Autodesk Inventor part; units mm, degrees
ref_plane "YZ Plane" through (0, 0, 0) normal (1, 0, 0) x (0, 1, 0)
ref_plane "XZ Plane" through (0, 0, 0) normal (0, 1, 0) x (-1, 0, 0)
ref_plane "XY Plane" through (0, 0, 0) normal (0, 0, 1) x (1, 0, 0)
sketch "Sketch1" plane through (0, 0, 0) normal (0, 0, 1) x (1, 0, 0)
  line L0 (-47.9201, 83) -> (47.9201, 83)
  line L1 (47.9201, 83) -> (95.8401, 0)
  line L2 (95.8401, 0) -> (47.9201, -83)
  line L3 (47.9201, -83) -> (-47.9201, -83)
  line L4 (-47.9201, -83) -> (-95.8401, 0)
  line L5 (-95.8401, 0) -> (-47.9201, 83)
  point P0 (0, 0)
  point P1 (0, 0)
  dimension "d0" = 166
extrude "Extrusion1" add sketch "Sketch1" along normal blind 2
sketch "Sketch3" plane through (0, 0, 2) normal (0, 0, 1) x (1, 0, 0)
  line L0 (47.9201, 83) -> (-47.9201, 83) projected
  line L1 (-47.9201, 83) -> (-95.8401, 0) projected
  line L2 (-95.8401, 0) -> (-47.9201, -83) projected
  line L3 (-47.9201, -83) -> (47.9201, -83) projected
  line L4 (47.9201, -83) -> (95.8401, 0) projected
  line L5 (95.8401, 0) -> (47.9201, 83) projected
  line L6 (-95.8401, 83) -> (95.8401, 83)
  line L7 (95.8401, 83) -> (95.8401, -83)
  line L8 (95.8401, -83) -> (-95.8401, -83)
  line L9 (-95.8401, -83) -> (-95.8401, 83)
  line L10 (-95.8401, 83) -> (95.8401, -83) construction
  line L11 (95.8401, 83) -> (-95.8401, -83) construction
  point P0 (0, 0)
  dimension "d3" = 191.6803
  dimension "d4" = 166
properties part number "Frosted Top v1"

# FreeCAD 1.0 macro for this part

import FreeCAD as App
import Part
import Sketcher
Q = App.Units.Quantity


def add_polygon(sketch, points):
    """Adds a closed chain of lines whose ends are joined by coincident constraints."""
    first, n = sketch.GeometryCount, len(points)
    for a, b in zip(points, points[1:] + points[:1]):
        sketch.addGeometry(Part.LineSegment(App.Vector(*a, 0), App.Vector(*b, 0)), False)
    for i in range(n):
        sketch.addConstraint(Sketcher.Constraint("Coincident", first + i, 2, first + (i + 1) % n, 1))

doc = App.newDocument("Part")
params = doc.addObject("Spreadsheet::Sheet", "Params")
for row, (alias, value) in enumerate([
    ("pad1_length", "2 mm"),
], start=1):
    params.set(f"A{row}", alias)
    params.set(f"B{row}", "=" + value)
    params.setAlias(f"B{row}", alias)

body = doc.addObject("PartDesign::Body", "Body")

sketch1 = doc.addObject("Sketcher::SketchObject", "Sketch")
body.addObject(sketch1)
sketch1.AttachmentSupport = (doc.XY_Plane, [""])
sketch1.MapMode = "FlatFace"
add_polygon(sketch1, [(48, 83), (-48, 83), (-96, 0), (-48, -83), (48, -83), (96, 0)])
sketch1.addConstraint([
    Sketcher.Constraint("Horizontal", 0),
    Sketcher.Constraint("Horizontal", 3),
    Sketcher.Constraint("Symmetric", 0, 2, 3, 2, -1, 1),
    Sketcher.Constraint("Symmetric", 1, 2, 4, 2, -1, 1),
    Sketcher.Constraint("PointOnObject", 1, 2, -1),
    Sketcher.Constraint("Parallel", 2, 5),
    Sketcher.Constraint("Vertical", 0, 2, 2, 2),
    Sketcher.Constraint("DistanceY", 2, 2, 0, 2, Q("166 mm")),
    Sketcher.Constraint("Angle", 1, Q("-120 deg")),
    Sketcher.Constraint("DistanceX", 0, 2, -1, 1, Q("47.92 mm")),
])
pad1 = doc.addObject("PartDesign::Pad", "Pad")
body.addObject(pad1)
pad1.Profile = sketch1
pad1.setExpression("Length", "Params.pad1_length")

doc.recompute()
